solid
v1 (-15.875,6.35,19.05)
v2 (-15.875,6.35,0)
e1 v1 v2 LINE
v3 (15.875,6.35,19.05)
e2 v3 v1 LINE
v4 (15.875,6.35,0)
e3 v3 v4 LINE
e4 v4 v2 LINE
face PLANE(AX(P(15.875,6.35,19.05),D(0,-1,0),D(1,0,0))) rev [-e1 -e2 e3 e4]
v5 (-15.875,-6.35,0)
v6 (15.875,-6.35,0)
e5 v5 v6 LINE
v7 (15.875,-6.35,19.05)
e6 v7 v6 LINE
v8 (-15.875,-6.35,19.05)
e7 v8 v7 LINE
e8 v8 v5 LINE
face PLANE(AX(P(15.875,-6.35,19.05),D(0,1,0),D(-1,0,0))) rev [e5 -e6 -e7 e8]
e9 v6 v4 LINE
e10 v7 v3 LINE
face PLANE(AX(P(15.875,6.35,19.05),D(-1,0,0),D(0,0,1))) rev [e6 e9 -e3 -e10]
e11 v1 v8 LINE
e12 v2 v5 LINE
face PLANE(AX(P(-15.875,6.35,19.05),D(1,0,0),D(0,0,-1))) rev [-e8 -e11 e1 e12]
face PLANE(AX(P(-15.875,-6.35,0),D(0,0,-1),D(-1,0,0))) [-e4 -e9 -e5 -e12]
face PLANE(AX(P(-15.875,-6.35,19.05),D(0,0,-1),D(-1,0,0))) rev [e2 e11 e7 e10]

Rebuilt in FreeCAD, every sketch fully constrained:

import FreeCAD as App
import Part
import Sketcher
from FreeCAD import Vector
Q = App.Units.Quantity

doc = App.newDocument("Part")
body = doc.addObject("PartDesign::Body", "Body")

sketch1 = doc.addObject("Sketcher::SketchObject", "Sketch")
body.addObject(sketch1)
sketch1.AttachmentSupport = (doc.XY_Plane, [""])
sketch1.MapMode = "FlatFace"
sketch1.addGeometry([
    Part.LineSegment(Vector(-16, 6, 0), Vector(-16, -6, 0)),
    Part.LineSegment(Vector(-16, -6, 0), Vector(16, -6, 0)),
    Part.LineSegment(Vector(16, -6, 0), Vector(16, 6, 0)),
    Part.LineSegment(Vector(16, 6, 0), Vector(-16, 6, 0)),
], False)
sketch1.addConstraint([
    Sketcher.Constraint("Coincident", 0, 2, 1, 1),
    Sketcher.Constraint("Coincident", 1, 2, 2, 1),
    Sketcher.Constraint("Coincident", 2, 2, 3, 1),
    Sketcher.Constraint("Coincident", 3, 2, 0, 1),
    Sketcher.Constraint("Vertical", 0),
    Sketcher.Constraint("Horizontal", 1),
    Sketcher.Constraint("Vertical", 2),
    Sketcher.Constraint("Horizontal", 3),
    Sketcher.Constraint("Symmetric", 0, 2, 2, 2, -1, 1),
    Sketcher.Constraint("DistanceY", 0, 2, 0, 1, Q("0.5 in")),
    Sketcher.Constraint("DistanceX", 1, 1, 1, 2, Q("1.25 in")),
])
pad1 = doc.addObject("PartDesign::Pad", "Pad")
body.addObject(pad1)
pad1.Profile = sketch1
pad1.Length = Q("0.75 in")

doc.recompute()
